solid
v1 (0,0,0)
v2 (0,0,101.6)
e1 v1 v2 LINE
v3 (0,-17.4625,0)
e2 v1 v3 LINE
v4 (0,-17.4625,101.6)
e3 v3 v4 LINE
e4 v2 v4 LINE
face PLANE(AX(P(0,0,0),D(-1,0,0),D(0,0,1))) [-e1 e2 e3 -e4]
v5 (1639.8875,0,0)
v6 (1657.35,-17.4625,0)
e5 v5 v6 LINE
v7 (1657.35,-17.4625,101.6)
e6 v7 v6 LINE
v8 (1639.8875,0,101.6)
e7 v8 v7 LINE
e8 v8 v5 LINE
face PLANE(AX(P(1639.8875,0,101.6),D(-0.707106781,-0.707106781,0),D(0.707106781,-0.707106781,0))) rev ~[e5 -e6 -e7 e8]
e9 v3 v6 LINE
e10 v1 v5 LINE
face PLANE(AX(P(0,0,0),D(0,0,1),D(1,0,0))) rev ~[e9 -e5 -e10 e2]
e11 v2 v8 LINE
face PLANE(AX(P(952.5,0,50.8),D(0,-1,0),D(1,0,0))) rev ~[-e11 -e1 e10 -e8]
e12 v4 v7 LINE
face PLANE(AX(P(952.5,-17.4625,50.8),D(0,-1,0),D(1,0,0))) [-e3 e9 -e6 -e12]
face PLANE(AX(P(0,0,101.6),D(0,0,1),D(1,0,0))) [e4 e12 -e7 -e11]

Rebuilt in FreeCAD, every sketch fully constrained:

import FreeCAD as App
import Part
import Sketcher
from FreeCAD import Vector
Q = App.Units.Quantity


def add_polygon(sketch, points):
    """Adds a closed chain of lines whose ends are joined by coincident constraints."""
    first, n = sketch.GeometryCount, len(points)
    for a, b in zip(points, points[1:] + points[:1]):
        sketch.addGeometry(Part.LineSegment(App.Vector(*a, 0), App.Vector(*b, 0)), False)
    for i in range(n):
        sketch.addConstraint(Sketcher.Constraint("Coincident", first + i, 2, first + (i + 1) % n, 1))

doc = App.newDocument("Part")
body = doc.addObject("PartDesign::Body", "Body")

sketch1 = doc.addObject("Sketcher::SketchObject", "Sketch")
body.addObject(sketch1)
sketch1.AttachmentSupport = (doc.XZ_Plane, [""])
sketch1.MapMode = "FlatFace"
add_polygon(sketch1, [(0, 102), (0, 0), (1905, 0), (1905, 102)])
sketch1.addConstraint([
    Sketcher.Constraint("Vertical", 0),
    Sketcher.Constraint("Horizontal", 1),
    Sketcher.Constraint("Vertical", 2),
    Sketcher.Constraint("Horizontal", 3),
    Sketcher.Constraint("Coincident", 0, 2, -1, 1),
    Sketcher.Constraint("DistanceX", 1, 1, 1, 2, Q("75 in")),
    Sketcher.Constraint("DistanceY", 0, 2, 0, 1, Q("4 in")),
])
pad1 = doc.addObject("PartDesign::Pad", "Pad")
body.addObject(pad1)
pad1.Profile = sketch1
pad1.Length = Q("0.6875 in")

sketch2 = doc.addObject("Sketcher::SketchObject", "Sketch001")
body.addObject(sketch2)
sketch2.AttachmentSupport = (doc.XY_Plane, [""])
sketch2.MapMode = "FlatFace"
sketch2.AttachmentOffset = App.Placement(Vector(0, 0, 4 * 25.4), App.Rotation())
add_polygon(sketch2, [(1640, 0), (1657, -17), (1905, -17), (1905, 0)])
sketch2.addConstraint([
    Sketcher.Constraint("Horizontal", 1),
    Sketcher.Constraint("Vertical", 2),
    Sketcher.Constraint("Horizontal", 3),
    Sketcher.Constraint("PointOnObject", 2, 2, -1),
    Sketcher.Constraint("DistanceX", -1, 1, 1, 2, Q("75 in")),
    Sketcher.Constraint("Angle", 0, Q("-45 deg")),
    Sketcher.Constraint("DistanceX", 1, 1, 1, 2, Q("9.75 in")),
    Sketcher.Constraint("DistanceX", 3, 2, 3, 1, Q("10.4375 in")),
])
pocket1 = doc.addObject("PartDesign::Pocket", "Pocket")
body.addObject(pocket1)
pocket1.Profile = sketch2
pocket1.Type = "ThroughAll"

doc.recompute()
